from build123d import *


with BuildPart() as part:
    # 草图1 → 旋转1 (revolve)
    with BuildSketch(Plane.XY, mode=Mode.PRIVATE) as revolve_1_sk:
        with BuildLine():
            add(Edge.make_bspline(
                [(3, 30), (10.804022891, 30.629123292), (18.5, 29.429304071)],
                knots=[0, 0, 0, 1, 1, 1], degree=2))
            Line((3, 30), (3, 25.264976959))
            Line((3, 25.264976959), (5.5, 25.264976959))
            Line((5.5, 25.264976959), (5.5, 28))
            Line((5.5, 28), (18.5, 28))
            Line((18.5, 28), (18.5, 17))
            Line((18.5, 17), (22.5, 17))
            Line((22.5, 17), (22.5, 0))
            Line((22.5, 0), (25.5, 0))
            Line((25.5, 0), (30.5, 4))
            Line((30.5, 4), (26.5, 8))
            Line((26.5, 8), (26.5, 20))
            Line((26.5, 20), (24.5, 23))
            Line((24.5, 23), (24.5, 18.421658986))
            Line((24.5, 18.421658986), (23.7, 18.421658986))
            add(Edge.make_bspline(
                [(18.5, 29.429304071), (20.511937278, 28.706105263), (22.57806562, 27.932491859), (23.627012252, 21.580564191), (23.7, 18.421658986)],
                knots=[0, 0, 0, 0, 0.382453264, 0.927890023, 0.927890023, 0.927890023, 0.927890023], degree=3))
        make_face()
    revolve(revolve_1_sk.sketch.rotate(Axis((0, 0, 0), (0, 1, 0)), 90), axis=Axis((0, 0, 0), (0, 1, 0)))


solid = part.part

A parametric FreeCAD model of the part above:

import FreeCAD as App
import Part
import Sketcher
Q = App.Units.Quantity

doc = App.newDocument("Part")
body = doc.addObject("PartDesign::Body", "Body")

sketch1 = body.newObject("Sketcher::SketchObject", "Sketch")
sketch1.AttachmentSupport = (doc.getObject("XY_Plane"), [""])
sketch1.MapMode = "FlatFace"
sketch1.addGeometry(Part.BSplineCurve([App.Vector(3, 30, 0), App.Vector(10.804023, 30.629123, 0), App.Vector(18.5, 29.429304, 0)], [3, 3], [0, 1], False, 2, [1, 1, 1], False), False)
sketch1.addGeometry(Part.LineSegment(App.Vector(3, 30, 0), App.Vector(3, 25.264977, 0)), False)
sketch1.addGeometry(Part.LineSegment(App.Vector(3, 25.264977, 0), App.Vector(5.5, 25.264977, 0)), False)
sketch1.addGeometry(Part.LineSegment(App.Vector(5.5, 25.264977, 0), App.Vector(5.5, 28, 0)), False)
sketch1.addGeometry(Part.LineSegment(App.Vector(5.5, 28, 0), App.Vector(18.5, 28, 0)), False)
sketch1.addGeometry(Part.LineSegment(App.Vector(18.5, 28, 0), App.Vector(18.5, 17, 0)), False)
sketch1.addGeometry(Part.LineSegment(App.Vector(18.5, 17, 0), App.Vector(22.5, 17, 0)), False)
sketch1.addGeometry(Part.LineSegment(App.Vector(22.5, 17, 0), App.Vector(22.5, 0, 0)), False)
sketch1.addGeometry(Part.LineSegment(App.Vector(22.5, 0, 0), App.Vector(25.5, 0, 0)), False)
sketch1.addGeometry(Part.LineSegment(App.Vector(25.5, 0, 0), App.Vector(30.5, 4, 0)), False)
sketch1.addGeometry(Part.LineSegment(App.Vector(30.5, 4, 0), App.Vector(26.5, 8, 0)), False)
sketch1.addGeometry(Part.LineSegment(App.Vector(26.5, 8, 0), App.Vector(26.5, 20, 0)), False)
sketch1.addGeometry(Part.LineSegment(App.Vector(26.5, 20, 0), App.Vector(24.5, 23, 0)), False)
sketch1.addGeometry(Part.LineSegment(App.Vector(24.5, 23, 0), App.Vector(24.5, 18.421659, 0)), False)
sketch1.addGeometry(Part.LineSegment(App.Vector(24.5, 18.421659, 0), App.Vector(23.7, 18.421659, 0)), False)
sketch1.addGeometry(Part.BSplineCurve([App.Vector(18.5, 29.429304, 0), App.Vector(20.511937, 28.706105, 0), App.Vector(22.578066, 27.932492, 0), App.Vector(23.627012, 21.580564, 0), App.Vector(23.7, 18.421659, 0)], [4, 1, 4], [0, 0.382453264, 0.927890023], False, 3, [1, 1, 1, 1, 1], False), False)
sketch1.addConstraint(Sketcher.Constraint("Block", 0))
sketch1.addConstraint(Sketcher.Constraint("Block", 15))
sketch1.addConstraint(Sketcher.Constraint("Coincident", 0, 1, 1, 1))
sketch1.addConstraint(Sketcher.Constraint("Coincident", 1, 2, 2, 1))
sketch1.addConstraint(Sketcher.Constraint("Coincident", 2, 2, 3, 1))
sketch1.addConstraint(Sketcher.Constraint("Coincident", 3, 2, 4, 1))
sketch1.addConstraint(Sketcher.Constraint("Coincident", 4, 2, 5, 1))
sketch1.addConstraint(Sketcher.Constraint("Coincident", 5, 2, 6, 1))
sketch1.addConstraint(Sketcher.Constraint("Coincident", 6, 2, 7, 1))
sketch1.addConstraint(Sketcher.Constraint("Coincident", 7, 2, 8, 1))
sketch1.addConstraint(Sketcher.Constraint("Coincident", 8, 2, 9, 1))
sketch1.addConstraint(Sketcher.Constraint("Coincident", 9, 2, 10, 1))
sketch1.addConstraint(Sketcher.Constraint("Coincident", 10, 2, 11, 1))
sketch1.addConstraint(Sketcher.Constraint("Coincident", 11, 2, 12, 1))
sketch1.addConstraint(Sketcher.Constraint("Coincident", 12, 2, 13, 1))
sketch1.addConstraint(Sketcher.Constraint("Coincident", 13, 2, 14, 1))
sketch1.addConstraint(Sketcher.Constraint("Coincident", 14, 2, 15, 2))
sketch1.addConstraint(Sketcher.Constraint("Vertical", 1))
sketch1.addConstraint(Sketcher.Constraint("Horizontal", 2))
sketch1.addConstraint(Sketcher.Constraint("Vertical", 3))
sketch1.addConstraint(Sketcher.Constraint("Horizontal", 4))
sketch1.addConstraint(Sketcher.Constraint("Vertical", 5))
sketch1.addConstraint(Sketcher.Constraint("Horizontal", 6))
sketch1.addConstraint(Sketcher.Constraint("Vertical", 7))
sketch1.addConstraint(Sketcher.Constraint("Horizontal", 8))
sketch1.addConstraint(Sketcher.Constraint("Vertical", 11))
sketch1.addConstraint(Sketcher.Constraint("Vertical", 13))
sketch1.addConstraint(Sketcher.Constraint("Horizontal", 14))
sketch1.addConstraint(Sketcher.Constraint("PointOnObject", 7, 2, -1))
sketch1.addConstraint(Sketcher.Constraint("DistanceX", 4, 1, 4, 2, Q("13 mm")))
sketch1.addConstraint(Sketcher.Constraint("DistanceX", 6, 1, 6, 2, Q("4 mm")))
sketch1.addConstraint(Sketcher.Constraint("DistanceX", 8, 1, 8, 2, Q("3 mm")))
sketch1.addConstraint(Sketcher.Constraint("DistanceY", 5, 2, 5, 1, Q("11 mm")))
sketch1.addConstraint(Sketcher.Constraint("DistanceY", 7, 2, 7, 1, Q("17 mm")))
sketch1.addConstraint(Sketcher.Constraint("DistanceY", 11, 1, 11, 2, Q("12 mm")))
sketch1.addConstraint(Sketcher.Constraint("Angle", 10, Q("135 deg")))
sketch1.addConstraint(Sketcher.Constraint("DistanceX", 2, 1, 2, 2, Q("2.5 mm")))
sketch1.addConstraint(Sketcher.Constraint("DistanceX", 14, 2, 14, 1, Q("0.8 mm")))
sketch1.addConstraint(Sketcher.Constraint("DistanceY", -1, 1, 9, 2, Q("4 mm")))
sketch1.addConstraint(Sketcher.Constraint("DistanceY", -1, 1, 10, 2, Q("8 mm")))
sketch1.addConstraint(Sketcher.Constraint("DistanceY", -1, 1, 12, 2, Q("23 mm")))
sketch1.addConstraint(Sketcher.Constraint("DistanceX", 8, 2, 9, 2, Q("5 mm")))
sketch1.addConstraint(Sketcher.Constraint("DistanceY", 1, 2, 1, 1, Q("4.735023 mm")))
revolution = body.newObject("PartDesign::Revolution", "Revolution")
revolution.Profile = sketch1
revolution.ReferenceAxis = (sketch1, ["V_Axis"])
revolution.Angle = 360

doc.recompute()
